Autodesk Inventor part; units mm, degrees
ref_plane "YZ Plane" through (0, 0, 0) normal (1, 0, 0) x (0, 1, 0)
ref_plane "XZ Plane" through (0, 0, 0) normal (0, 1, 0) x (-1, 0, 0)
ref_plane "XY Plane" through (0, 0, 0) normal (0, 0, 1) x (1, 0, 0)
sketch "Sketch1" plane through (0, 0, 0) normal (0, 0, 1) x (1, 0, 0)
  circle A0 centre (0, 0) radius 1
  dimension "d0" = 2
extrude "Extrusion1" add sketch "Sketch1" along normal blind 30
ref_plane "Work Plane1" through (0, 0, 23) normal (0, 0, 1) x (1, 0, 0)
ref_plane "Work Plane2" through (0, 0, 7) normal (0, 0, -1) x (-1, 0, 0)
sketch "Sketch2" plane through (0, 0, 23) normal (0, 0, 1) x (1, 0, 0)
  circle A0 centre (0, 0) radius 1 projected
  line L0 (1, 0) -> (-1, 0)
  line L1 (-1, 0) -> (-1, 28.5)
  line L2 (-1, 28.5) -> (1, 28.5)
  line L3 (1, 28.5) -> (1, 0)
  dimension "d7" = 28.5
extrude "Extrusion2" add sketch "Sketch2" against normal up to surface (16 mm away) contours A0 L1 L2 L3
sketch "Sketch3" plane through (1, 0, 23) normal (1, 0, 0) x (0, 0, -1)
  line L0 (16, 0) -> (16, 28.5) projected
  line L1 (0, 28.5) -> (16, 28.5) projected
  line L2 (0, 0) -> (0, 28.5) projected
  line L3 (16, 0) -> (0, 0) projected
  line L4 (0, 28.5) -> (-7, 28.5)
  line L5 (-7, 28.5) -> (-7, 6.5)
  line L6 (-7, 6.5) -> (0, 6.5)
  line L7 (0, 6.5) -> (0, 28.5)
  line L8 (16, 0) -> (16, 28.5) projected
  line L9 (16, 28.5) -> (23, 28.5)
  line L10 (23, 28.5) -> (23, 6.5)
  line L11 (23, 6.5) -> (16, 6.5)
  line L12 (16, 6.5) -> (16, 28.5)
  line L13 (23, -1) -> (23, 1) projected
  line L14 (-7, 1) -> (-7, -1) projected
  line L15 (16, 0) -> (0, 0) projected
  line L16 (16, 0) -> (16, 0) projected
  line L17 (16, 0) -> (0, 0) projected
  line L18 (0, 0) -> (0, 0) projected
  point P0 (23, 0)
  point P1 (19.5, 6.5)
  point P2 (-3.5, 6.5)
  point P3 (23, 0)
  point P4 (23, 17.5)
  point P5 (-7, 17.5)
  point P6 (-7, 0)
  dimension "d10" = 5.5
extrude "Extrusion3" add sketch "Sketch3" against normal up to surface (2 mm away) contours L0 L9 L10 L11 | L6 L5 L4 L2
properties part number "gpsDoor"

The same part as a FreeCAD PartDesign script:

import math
import FreeCAD as App
import Part
import Sketcher


def add_polygon(sketch, points):
    """Adds a closed chain of lines whose ends are joined by coincident constraints."""
    first, n = sketch.GeometryCount, len(points)
    for a, b in zip(points, points[1:] + points[:1]):
        sketch.addGeometry(Part.LineSegment(App.Vector(*a, 0), App.Vector(*b, 0)), False)
    for i in range(n):
        sketch.addConstraint(Sketcher.Constraint("Coincident", first + i, 2, first + (i + 1) % n, 1))

doc = App.newDocument("Part")
body = doc.addObject("PartDesign::Body", "Body")

sketch1 = body.newObject("Sketcher::SketchObject", "Sketch")
sketch1.AttachmentSupport = (doc.getObject("XY_Plane"), [""])
sketch1.MapMode = "FlatFace"
sketch1.addGeometry(Part.Circle(App.Vector(0, 0, 0), App.Vector(0, 0, 1), 1), False)
sketch1.addConstraint([
    Sketcher.Constraint("Coincident", 0, 3, -1, 1),
    Sketcher.Constraint("Diameter", 0, 2.0),
])
pad1 = body.newObject("PartDesign::Pad", "Pad")
pad1.Profile = sketch1
pad1.Length = 30

sketch2 = body.newObject("Sketcher::SketchObject", "Sketch001")
sketch2.AttachmentSupport = (doc.getObject("XY_Plane"), [""])
sketch2.MapMode = "FlatFace"
sketch2.AttachmentOffset = App.Placement(App.Vector(0, 0, 23), App.Rotation())
sketch2.addGeometry([
    Part.ArcOfCircle(Part.Circle(App.Vector(0, 0, 0), App.Vector(0, 0, 1), 1), math.radians(0), math.radians(180)),
    Part.LineSegment(App.Vector(1, 0, 0), App.Vector(1, 28.5, 0)),
    Part.LineSegment(App.Vector(1, 28.5, 0), App.Vector(-1, 28.5, 0)),
    Part.LineSegment(App.Vector(-1, 28.5, 0), App.Vector(-1, 0, 0)),
], False)
sketch2.addConstraint([
    Sketcher.Constraint("Tangent", 0, 1, 1, 1),
    Sketcher.Constraint("Coincident", 1, 2, 2, 1),
    Sketcher.Constraint("Coincident", 2, 2, 3, 1),
    Sketcher.Constraint("Tangent", 3, 2, 0, 2),
    Sketcher.Constraint("Vertical", 1),
    Sketcher.Constraint("Horizontal", 2),
    Sketcher.Constraint("Vertical", 3),
    Sketcher.Constraint("Coincident", 0, 3, -1, 1),
    Sketcher.Constraint("DistanceY", 1, 1, 1, 2, 28.5),
    Sketcher.Constraint("Radius", 0, 1.0),
])
pad2 = body.newObject("PartDesign::Pad", "Pad001")
pad2.Profile = sketch2
pad2.Length = 16
pad2.Reversed = True

sketch3 = body.newObject("Sketcher::SketchObject", "Sketch002")
sketch3.AttachmentSupport = (doc.getObject("YZ_Plane"), [""])
sketch3.MapMode = "FlatFace"
sketch3.AttachmentOffset = App.Placement(App.Vector(0, 0, 1), App.Rotation())
add_polygon(sketch3, [(28.5, 7), (6.5, 7), (6.5, 0), (28.5, 0)])
add_polygon(sketch3, [(6.5, 30), (6.5, 23), (28.5, 23), (28.5, 30)])
sketch3.addConstraint([
    Sketcher.Constraint("Horizontal", 0),
    Sketcher.Constraint("Vertical", 1),
    Sketcher.Constraint("Horizontal", 2),
    Sketcher.Constraint("Vertical", 3),
    Sketcher.Constraint("Vertical", 4),
    Sketcher.Constraint("Horizontal", 5),
    Sketcher.Constraint("Vertical", 6),
    Sketcher.Constraint("Horizontal", 7),
    Sketcher.Constraint("PointOnObject", 1, 2, -1),
    Sketcher.Constraint("Vertical", 1, 2, 4, 2),
    Sketcher.Constraint("Vertical", 3, 2, 5, 2),
    Sketcher.Constraint("Equal", 3, 4),
    Sketcher.Constraint("DistanceX", 0, 2, 0, 1, 22.0),
    Sketcher.Constraint("DistanceY", 1, 2, 1, 1, 7.0),
    Sketcher.Constraint("DistanceY", -1, 1, 4, 2, 23.0),
    Sketcher.Constraint("DistanceX", -1, 1, 0, 2, 6.5),
])
pad3 = body.newObject("PartDesign::Pad", "Pad002")
pad3.Profile = sketch3
pad3.Length = 2
pad3.Reversed = True

doc.recompute()
